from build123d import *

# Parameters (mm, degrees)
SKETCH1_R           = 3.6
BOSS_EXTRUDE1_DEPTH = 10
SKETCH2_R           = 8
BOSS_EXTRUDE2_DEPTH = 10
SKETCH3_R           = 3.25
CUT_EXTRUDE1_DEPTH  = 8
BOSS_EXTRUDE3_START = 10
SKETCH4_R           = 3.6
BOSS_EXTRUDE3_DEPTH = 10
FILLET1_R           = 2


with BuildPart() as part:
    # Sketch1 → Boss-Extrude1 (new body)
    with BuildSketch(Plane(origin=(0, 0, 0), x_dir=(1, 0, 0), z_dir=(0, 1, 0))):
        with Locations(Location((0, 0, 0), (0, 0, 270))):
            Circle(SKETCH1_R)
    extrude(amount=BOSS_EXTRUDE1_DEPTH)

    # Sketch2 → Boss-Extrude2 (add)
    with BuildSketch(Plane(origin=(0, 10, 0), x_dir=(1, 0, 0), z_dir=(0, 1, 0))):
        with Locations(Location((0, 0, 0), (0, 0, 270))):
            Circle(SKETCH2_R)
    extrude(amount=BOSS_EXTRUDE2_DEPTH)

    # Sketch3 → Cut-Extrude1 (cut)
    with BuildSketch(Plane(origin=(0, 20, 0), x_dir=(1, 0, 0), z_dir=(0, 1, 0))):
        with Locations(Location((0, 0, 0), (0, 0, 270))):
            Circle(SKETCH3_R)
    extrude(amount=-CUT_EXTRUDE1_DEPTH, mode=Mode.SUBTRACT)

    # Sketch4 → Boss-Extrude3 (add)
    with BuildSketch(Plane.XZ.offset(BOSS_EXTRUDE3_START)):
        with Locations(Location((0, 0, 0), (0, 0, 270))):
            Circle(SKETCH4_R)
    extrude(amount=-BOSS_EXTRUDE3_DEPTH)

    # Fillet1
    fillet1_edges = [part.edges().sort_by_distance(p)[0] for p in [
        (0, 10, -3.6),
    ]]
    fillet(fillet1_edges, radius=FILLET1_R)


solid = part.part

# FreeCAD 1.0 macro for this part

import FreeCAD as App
import Part
import Sketcher
from FreeCAD import Vector
Q = App.Units.Quantity


def edges_at(feature, points):
    """Names of the edges that pass closest to the given points."""
    edges = feature.Shape.Edges
    near = lambda p: min(range(len(edges)), key=lambda i: edges[i].distToShape(Part.Vertex(*p))[0])
    return sorted({f"Edge{near(p) + 1}" for p in points})

doc = App.newDocument("Part")
params = doc.addObject("Spreadsheet::Sheet", "Params")
for row, (alias, value) in enumerate([
    ("sketch1_diameter", "7.2 mm"),
    ("pad1_length", "10 mm"),
    ("sketch2_diameter", "16 mm"),
    ("pad2_length", "10 mm"),
    ("sketch3_diameter", "6.5 mm"),
    ("pocket1_length", "8 mm"),
    ("sketch4_diameter", "7.2 mm"),
    ("pad3_length", "10 mm"),
    ("fillet_radius", "2 mm"),
], start=1):
    params.set(f"A{row}", alias)
    params.set(f"B{row}", "=" + value)
    params.setAlias(f"B{row}", alias)

body = doc.addObject("PartDesign::Body", "Body")

sketch1 = body.newObject("Sketcher::SketchObject", "Sketch")
sketch1.AttachmentSupport = (doc.getObject("XZ_Plane"), [""])
sketch1.MapMode = "FlatFace"
sketch1.addGeometry(Part.Circle(Vector(0, 0, 0), Vector(0, 0, 1), 3.6), False)
sketch1.addConstraint(Sketcher.Constraint("Coincident", 0, 3, -1, 1))
sketch1.addConstraint(Sketcher.Constraint("Diameter", 0, Q("7.2 mm")))
sketch1.setExpression("Constraints[1]", "Params.sketch1_diameter")
pad1 = body.newObject("PartDesign::Pad", "Pad")
pad1.Profile = sketch1
pad1.setExpression("Length", "Params.pad1_length")
pad1.Reversed = True

sketch2 = body.newObject("Sketcher::SketchObject", "Sketch001")
sketch2.AttachmentSupport = (doc.getObject("XZ_Plane"), [""])
sketch2.MapMode = "FlatFace"
sketch2.AttachmentOffset = App.Placement(Vector(0, 0, -10), App.Rotation())
sketch2.addGeometry(Part.Circle(Vector(0, 0, 0), Vector(0, 0, 1), 8), False)
sketch2.addConstraint(Sketcher.Constraint("Coincident", 0, 3, -1, 1))
sketch2.addConstraint(Sketcher.Constraint("Diameter", 0, Q("16 mm")))
sketch2.setExpression("Constraints[1]", "Params.sketch2_diameter")
pad2 = body.newObject("PartDesign::Pad", "Pad001")
pad2.Profile = sketch2
pad2.setExpression("Length", "Params.pad2_length")
pad2.Reversed = True

sketch3 = body.newObject("Sketcher::SketchObject", "Sketch002")
sketch3.AttachmentSupport = (doc.getObject("XZ_Plane"), [""])
sketch3.MapMode = "FlatFace"
sketch3.AttachmentOffset = App.Placement(Vector(0, 0, -20), App.Rotation())
sketch3.addGeometry(Part.Circle(Vector(0, 0, 0), Vector(0, 0, 1), 3.25), False)
sketch3.addConstraint(Sketcher.Constraint("Coincident", 0, 3, -1, 1))
sketch3.addConstraint(Sketcher.Constraint("Diameter", 0, Q("6.5 mm")))
sketch3.setExpression("Constraints[1]", "Params.sketch3_diameter")
pocket1 = body.newObject("PartDesign::Pocket", "Pocket")
pocket1.Profile = sketch3
pocket1.setExpression("Length", "Params.pocket1_length")
pocket1.Reversed = True

sketch4 = body.newObject("Sketcher::SketchObject", "Sketch003")
sketch4.AttachmentSupport = (doc.getObject("XZ_Plane"), [""])
sketch4.MapMode = "FlatFace"
sketch4.AttachmentOffset = App.Placement(Vector(0, 0, 10), App.Rotation())
sketch4.addGeometry(Part.Circle(Vector(0, 0, 0), Vector(0, 0, 1), 3.6), False)
sketch4.addConstraint(Sketcher.Constraint("Coincident", 0, 3, -1, 1))
sketch4.addConstraint(Sketcher.Constraint("Diameter", 0, Q("7.2 mm")))
sketch4.setExpression("Constraints[1]", "Params.sketch4_diameter")
pad3 = body.newObject("PartDesign::Pad", "Pad002")
pad3.Profile = sketch4
pad3.setExpression("Length", "Params.pad3_length")
pad3.Reversed = True
doc.recompute()

fillet = body.newObject("PartDesign::Fillet", "Fillet")
fillet.Base = (pad3, edges_at(pad3, [(0, 10, -3.6)]))
fillet.setExpression("Radius", "Params.fillet_radius")

doc.recompute()
